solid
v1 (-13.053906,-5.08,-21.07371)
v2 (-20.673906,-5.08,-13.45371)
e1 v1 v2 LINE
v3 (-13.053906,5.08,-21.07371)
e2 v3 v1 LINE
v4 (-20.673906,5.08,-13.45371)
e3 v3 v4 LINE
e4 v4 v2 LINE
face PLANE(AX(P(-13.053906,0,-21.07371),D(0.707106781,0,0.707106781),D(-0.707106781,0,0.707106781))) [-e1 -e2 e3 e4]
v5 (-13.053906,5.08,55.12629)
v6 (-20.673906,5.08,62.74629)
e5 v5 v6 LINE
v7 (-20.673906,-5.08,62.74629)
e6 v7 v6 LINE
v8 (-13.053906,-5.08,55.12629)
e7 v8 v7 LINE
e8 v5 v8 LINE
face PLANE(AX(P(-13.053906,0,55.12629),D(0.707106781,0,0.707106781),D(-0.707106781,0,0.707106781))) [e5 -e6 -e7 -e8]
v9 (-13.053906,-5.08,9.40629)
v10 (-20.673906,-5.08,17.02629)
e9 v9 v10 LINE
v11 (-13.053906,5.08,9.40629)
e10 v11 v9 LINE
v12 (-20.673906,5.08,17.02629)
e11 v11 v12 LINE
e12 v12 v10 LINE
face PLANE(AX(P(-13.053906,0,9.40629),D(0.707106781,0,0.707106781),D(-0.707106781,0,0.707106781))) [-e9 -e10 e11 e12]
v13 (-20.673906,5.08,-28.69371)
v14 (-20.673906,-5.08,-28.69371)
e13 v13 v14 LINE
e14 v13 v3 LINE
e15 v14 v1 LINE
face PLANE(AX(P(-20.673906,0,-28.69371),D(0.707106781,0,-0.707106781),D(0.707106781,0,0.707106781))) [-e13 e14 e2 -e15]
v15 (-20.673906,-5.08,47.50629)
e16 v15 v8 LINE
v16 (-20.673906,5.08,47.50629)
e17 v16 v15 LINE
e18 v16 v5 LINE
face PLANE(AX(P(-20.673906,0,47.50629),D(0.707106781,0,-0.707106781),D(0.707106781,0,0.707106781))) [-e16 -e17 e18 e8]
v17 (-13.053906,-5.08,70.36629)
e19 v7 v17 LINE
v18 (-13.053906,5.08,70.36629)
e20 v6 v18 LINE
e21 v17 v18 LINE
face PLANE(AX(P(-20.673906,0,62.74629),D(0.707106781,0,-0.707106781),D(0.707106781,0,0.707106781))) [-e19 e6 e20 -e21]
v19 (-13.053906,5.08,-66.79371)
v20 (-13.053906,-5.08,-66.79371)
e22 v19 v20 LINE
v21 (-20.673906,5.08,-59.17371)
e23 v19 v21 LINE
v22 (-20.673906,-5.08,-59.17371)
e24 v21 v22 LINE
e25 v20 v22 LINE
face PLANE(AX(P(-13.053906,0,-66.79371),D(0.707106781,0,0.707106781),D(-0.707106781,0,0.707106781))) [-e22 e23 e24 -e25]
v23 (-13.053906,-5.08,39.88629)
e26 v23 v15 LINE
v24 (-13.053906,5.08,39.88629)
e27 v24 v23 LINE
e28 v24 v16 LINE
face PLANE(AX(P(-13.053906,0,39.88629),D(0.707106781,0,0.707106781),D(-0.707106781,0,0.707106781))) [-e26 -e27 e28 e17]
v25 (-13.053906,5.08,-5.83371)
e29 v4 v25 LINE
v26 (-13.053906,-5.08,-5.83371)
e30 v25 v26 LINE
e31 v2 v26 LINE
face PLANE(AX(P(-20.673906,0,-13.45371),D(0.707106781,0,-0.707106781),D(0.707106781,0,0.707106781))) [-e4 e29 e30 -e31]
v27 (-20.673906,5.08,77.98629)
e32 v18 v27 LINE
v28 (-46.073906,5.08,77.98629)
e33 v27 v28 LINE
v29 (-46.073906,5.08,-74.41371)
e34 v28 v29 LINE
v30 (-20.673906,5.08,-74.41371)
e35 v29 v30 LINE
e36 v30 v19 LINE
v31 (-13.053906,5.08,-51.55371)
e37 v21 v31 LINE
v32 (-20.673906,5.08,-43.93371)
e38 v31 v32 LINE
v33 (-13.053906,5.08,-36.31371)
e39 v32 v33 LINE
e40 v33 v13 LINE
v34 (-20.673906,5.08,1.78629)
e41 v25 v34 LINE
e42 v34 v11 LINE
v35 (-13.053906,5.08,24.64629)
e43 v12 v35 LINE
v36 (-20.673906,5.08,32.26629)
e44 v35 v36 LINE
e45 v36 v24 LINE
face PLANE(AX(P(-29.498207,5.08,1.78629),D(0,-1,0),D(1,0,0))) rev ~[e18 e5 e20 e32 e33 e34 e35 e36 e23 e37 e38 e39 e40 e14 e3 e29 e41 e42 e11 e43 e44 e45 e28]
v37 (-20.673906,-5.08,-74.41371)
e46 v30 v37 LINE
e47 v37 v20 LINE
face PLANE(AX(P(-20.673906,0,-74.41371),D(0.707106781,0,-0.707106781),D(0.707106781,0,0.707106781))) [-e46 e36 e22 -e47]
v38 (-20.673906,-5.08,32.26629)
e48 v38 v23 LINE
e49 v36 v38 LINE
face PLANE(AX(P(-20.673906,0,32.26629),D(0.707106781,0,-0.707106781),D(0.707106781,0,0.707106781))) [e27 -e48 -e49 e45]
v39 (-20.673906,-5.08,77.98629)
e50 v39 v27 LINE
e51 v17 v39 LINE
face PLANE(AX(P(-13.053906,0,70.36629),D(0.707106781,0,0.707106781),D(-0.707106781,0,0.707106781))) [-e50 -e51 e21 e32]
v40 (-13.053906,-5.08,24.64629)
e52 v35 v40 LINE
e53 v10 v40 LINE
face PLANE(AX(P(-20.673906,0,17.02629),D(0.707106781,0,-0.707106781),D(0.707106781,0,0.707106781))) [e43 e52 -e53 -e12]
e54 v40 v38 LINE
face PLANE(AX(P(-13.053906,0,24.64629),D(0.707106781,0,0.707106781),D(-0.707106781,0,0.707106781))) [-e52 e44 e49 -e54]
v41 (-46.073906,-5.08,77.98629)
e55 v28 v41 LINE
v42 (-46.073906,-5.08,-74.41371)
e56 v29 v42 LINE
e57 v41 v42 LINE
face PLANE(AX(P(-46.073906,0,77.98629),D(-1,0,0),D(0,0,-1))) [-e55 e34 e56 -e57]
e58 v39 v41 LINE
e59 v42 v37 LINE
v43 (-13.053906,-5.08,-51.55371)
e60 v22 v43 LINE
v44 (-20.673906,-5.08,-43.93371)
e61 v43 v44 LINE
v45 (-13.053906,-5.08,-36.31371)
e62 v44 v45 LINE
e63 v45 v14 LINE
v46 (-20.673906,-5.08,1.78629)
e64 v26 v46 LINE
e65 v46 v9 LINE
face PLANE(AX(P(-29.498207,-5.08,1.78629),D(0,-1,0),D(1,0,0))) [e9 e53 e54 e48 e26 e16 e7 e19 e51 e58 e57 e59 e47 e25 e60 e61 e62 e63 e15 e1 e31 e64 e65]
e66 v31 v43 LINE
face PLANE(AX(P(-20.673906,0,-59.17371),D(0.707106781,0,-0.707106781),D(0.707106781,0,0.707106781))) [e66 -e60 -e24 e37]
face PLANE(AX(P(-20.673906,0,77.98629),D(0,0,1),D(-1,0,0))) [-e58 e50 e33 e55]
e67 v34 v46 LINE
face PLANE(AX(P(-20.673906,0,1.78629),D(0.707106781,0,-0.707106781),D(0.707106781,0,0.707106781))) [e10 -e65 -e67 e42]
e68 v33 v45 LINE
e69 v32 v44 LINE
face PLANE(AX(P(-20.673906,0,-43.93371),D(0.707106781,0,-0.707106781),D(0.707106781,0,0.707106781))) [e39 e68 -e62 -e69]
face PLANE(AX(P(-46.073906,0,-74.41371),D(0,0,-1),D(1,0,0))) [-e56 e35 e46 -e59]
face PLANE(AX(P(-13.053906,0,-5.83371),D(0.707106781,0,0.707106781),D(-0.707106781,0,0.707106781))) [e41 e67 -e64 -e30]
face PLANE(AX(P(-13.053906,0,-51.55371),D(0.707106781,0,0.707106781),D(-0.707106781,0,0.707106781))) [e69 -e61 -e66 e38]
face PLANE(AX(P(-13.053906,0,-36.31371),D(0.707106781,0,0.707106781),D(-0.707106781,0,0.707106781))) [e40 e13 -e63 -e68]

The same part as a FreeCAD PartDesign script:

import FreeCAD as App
import Part
import Sketcher
from FreeCAD import Vector
Q = App.Units.Quantity

doc = App.newDocument("Part")
body = doc.addObject("PartDesign::Body", "Body")

sketch1 = body.newObject("Sketcher::SketchObject", "Sketch")
sketch1.AttachmentSupport = (doc.getObject("XZ_Plane"), [""])
sketch1.MapMode = "FlatFace"
sketch1.addGeometry(Part.LineSegment(Vector(-21, 78, 0), Vector(-46, 78, 0)), False)
sketch1.addGeometry(Part.LineSegment(Vector(-46, 78, 0), Vector(-46, -74, 0)), False)
sketch1.addGeometry(Part.LineSegment(Vector(-46, -74, 0), Vector(-21, -74, 0)), False)
sketch1.addGeometry(Part.LineSegment(Vector(-21, -74, 0), Vector(-13, -67, 0)), False)
sketch1.addGeometry(Part.LineSegment(Vector(-13, -67, 0), Vector(-21, -59, 0)), False)
sketch1.addGeometry(Part.LineSegment(Vector(-21, -59, 0), Vector(-13, -52, 0)), False)
sketch1.addGeometry(Part.LineSegment(Vector(-13, -52, 0), Vector(-21, -44, 0)), False)
sketch1.addGeometry(Part.LineSegment(Vector(-21, -44, 0), Vector(-13, -36, 0)), False)
sketch1.addGeometry(Part.LineSegment(Vector(-13, -36, 0), Vector(-21, -29, 0)), False)
sketch1.addGeometry(Part.LineSegment(Vector(-21, -29, 0), Vector(-13, -21, 0)), False)
sketch1.addGeometry(Part.LineSegment(Vector(-13, -21, 0), Vector(-21, -13, 0)), False)
sketch1.addGeometry(Part.LineSegment(Vector(-21, -13, 0), Vector(-13, -6, 0)), False)
sketch1.addGeometry(Part.LineSegment(Vector(-13, -6, 0), Vector(-21, 2, 0)), False)
sketch1.addGeometry(Part.LineSegment(Vector(-21, 2, 0), Vector(-13, 9, 0)), False)
sketch1.addGeometry(Part.LineSegment(Vector(-13, 9, 0), Vector(-21, 17, 0)), False)
sketch1.addGeometry(Part.LineSegment(Vector(-21, 17, 0), Vector(-13, 25, 0)), False)
sketch1.addGeometry(Part.LineSegment(Vector(-13, 25, 0), Vector(-21, 32, 0)), False)
sketch1.addGeometry(Part.LineSegment(Vector(-21, 32, 0), Vector(-13, 40, 0)), False)
sketch1.addGeometry(Part.LineSegment(Vector(-13, 40, 0), Vector(-21, 48, 0)), False)
sketch1.addGeometry(Part.LineSegment(Vector(-21, 48, 0), Vector(-13, 55, 0)), False)
sketch1.addGeometry(Part.LineSegment(Vector(-13, 55, 0), Vector(-21, 63, 0)), False)
sketch1.addGeometry(Part.LineSegment(Vector(-21, 63, 0), Vector(-13, 70, 0)), False)
sketch1.addGeometry(Part.LineSegment(Vector(-13, 70, 0), Vector(-21, 78, 0)), False)
sketch1.addConstraint(Sketcher.Constraint("Coincident", 0, 2, 1, 1))
sketch1.addConstraint(Sketcher.Constraint("Coincident", 1, 2, 2, 1))
sketch1.addConstraint(Sketcher.Constraint("Coincident", 2, 2, 3, 1))
sketch1.addConstraint(Sketcher.Constraint("Coincident", 3, 2, 4, 1))
sketch1.addConstraint(Sketcher.Constraint("Coincident", 4, 2, 5, 1))
sketch1.addConstraint(Sketcher.Constraint("Coincident", 5, 2, 6, 1))
sketch1.addConstraint(Sketcher.Constraint("Coincident", 6, 2, 7, 1))
sketch1.addConstraint(Sketcher.Constraint("Coincident", 7, 2, 8, 1))
sketch1.addConstraint(Sketcher.Constraint("Coincident", 8, 2, 9, 1))
sketch1.addConstraint(Sketcher.Constraint("Coincident", 9, 2, 10, 1))
sketch1.addConstraint(Sketcher.Constraint("Coincident", 10, 2, 11, 1))
sketch1.addConstraint(Sketcher.Constraint("Coincident", 11, 2, 12, 1))
sketch1.addConstraint(Sketcher.Constraint("Coincident", 12, 2, 13, 1))
sketch1.addConstraint(Sketcher.Constraint("Coincident", 13, 2, 14, 1))
sketch1.addConstraint(Sketcher.Constraint("Coincident", 14, 2, 15, 1))
sketch1.addConstraint(Sketcher.Constraint("Coincident", 15, 2, 16, 1))
sketch1.addConstraint(Sketcher.Constraint("Coincident", 16, 2, 17, 1))
sketch1.addConstraint(Sketcher.Constraint("Coincident", 17, 2, 18, 1))
sketch1.addConstraint(Sketcher.Constraint("Coincident", 18, 2, 19, 1))
sketch1.addConstraint(Sketcher.Constraint("Coincident", 19, 2, 20, 1))
sketch1.addConstraint(Sketcher.Constraint("Coincident", 20, 2, 21, 1))
sketch1.addConstraint(Sketcher.Constraint("Coincident", 21, 2, 22, 1))
sketch1.addConstraint(Sketcher.Constraint("Coincident", 22, 2, 0, 1))
sketch1.addConstraint(Sketcher.Constraint("Horizontal", 0))
sketch1.addConstraint(Sketcher.Constraint("Vertical", 1))
sketch1.addConstraint(Sketcher.Constraint("Horizontal", 2))
sketch1.addConstraint(Sketcher.Constraint("Perpendicular", 3, 4))
sketch1.addConstraint(Sketcher.Constraint("Perpendicular", 4, 5))
sketch1.addConstraint(Sketcher.Constraint("Perpendicular", 5, 6))
sketch1.addConstraint(Sketcher.Constraint("Perpendicular", 6, 7))
sketch1.addConstraint(Sketcher.Constraint("Perpendicular", 7, 8))
sketch1.addConstraint(Sketcher.Constraint("Perpendicular", 8, 9))
sketch1.addConstraint(Sketcher.Constraint("Perpendicular", 9, 10))
sketch1.addConstraint(Sketcher.Constraint("Perpendicular", 10, 11))
sketch1.addConstraint(Sketcher.Constraint("Perpendicular", 11, 12))
sketch1.addConstraint(Sketcher.Constraint("Perpendicular", 12, 13))
sketch1.addConstraint(Sketcher.Constraint("Perpendicular", 13, 14))
sketch1.addConstraint(Sketcher.Constraint("Perpendicular", 14, 15))
sketch1.addConstraint(Sketcher.Constraint("Perpendicular", 15, 16))
sketch1.addConstraint(Sketcher.Constraint("Perpendicular", 16, 17))
sketch1.addConstraint(Sketcher.Constraint("Perpendicular", 17, 18))
sketch1.addConstraint(Sketcher.Constraint("Perpendicular", 18, 19))
sketch1.addConstraint(Sketcher.Constraint("Perpendicular", 19, 20))
sketch1.addConstraint(Sketcher.Constraint("Perpendicular", 20, 21))
sketch1.addConstraint(Sketcher.Constraint("Perpendicular", 21, 22))
sketch1.addConstraint(Sketcher.Constraint("Vertical", 2, 2, 4, 2))
sketch1.addConstraint(Sketcher.Constraint("Vertical", 3, 2, 5, 2))
sketch1.addConstraint(Sketcher.Constraint("Vertical", 4, 2, 6, 2))
sketch1.addConstraint(Sketcher.Constraint("Vertical", 5, 2, 7, 2))
sketch1.addConstraint(Sketcher.Constraint("Vertical", 6, 2, 8, 2))
sketch1.addConstraint(Sketcher.Constraint("Vertical", 7, 2, 9, 2))
sketch1.addConstraint(Sketcher.Constraint("Vertical", 8, 2, 10, 2))
sketch1.addConstraint(Sketcher.Constraint("Vertical", 9, 2, 11, 2))
sketch1.addConstraint(Sketcher.Constraint("Vertical", 10, 2, 12, 2))
sketch1.addConstraint(Sketcher.Constraint("Vertical", 11, 2, 13, 2))
sketch1.addConstraint(Sketcher.Constraint("Vertical", 12, 2, 14, 2))
sketch1.addConstraint(Sketcher.Constraint("Vertical", 13, 2, 15, 2))
sketch1.addConstraint(Sketcher.Constraint("Vertical", 14, 2, 16, 2))
sketch1.addConstraint(Sketcher.Constraint("Vertical", 15, 2, 17, 2))
sketch1.addConstraint(Sketcher.Constraint("Vertical", 16, 2, 18, 2))
sketch1.addConstraint(Sketcher.Constraint("Vertical", 17, 2, 19, 2))
sketch1.addConstraint(Sketcher.Constraint("Vertical", 18, 2, 20, 2))
sketch1.addConstraint(Sketcher.Constraint("Vertical", 19, 2, 21, 2))
sketch1.addConstraint(Sketcher.Constraint("Vertical", 20, 2, 22, 2))
sketch1.addConstraint(Sketcher.Constraint("Equal", 3, 4))
sketch1.addConstraint(Sketcher.Constraint("DistanceX", 0, 2, 0, 1, Q("1 in")))
sketch1.addConstraint(Sketcher.Constraint("DistanceY", 1, 2, 1, 1, Q("6 in")))
sketch1.addConstraint(Sketcher.Constraint("DistanceY", -1, 1, 0, 2, Q("77.98629 mm")))
sketch1.addConstraint(Sketcher.Constraint("DistanceX", 0, 2, -1, 1, Q("46.073906 mm")))
pad1 = body.newObject("PartDesign::Pad", "Pad")
pad1.Profile = sketch1
pad1.Length = Q("0.4 in")
pad1.Midplane = True

doc.recompute()
